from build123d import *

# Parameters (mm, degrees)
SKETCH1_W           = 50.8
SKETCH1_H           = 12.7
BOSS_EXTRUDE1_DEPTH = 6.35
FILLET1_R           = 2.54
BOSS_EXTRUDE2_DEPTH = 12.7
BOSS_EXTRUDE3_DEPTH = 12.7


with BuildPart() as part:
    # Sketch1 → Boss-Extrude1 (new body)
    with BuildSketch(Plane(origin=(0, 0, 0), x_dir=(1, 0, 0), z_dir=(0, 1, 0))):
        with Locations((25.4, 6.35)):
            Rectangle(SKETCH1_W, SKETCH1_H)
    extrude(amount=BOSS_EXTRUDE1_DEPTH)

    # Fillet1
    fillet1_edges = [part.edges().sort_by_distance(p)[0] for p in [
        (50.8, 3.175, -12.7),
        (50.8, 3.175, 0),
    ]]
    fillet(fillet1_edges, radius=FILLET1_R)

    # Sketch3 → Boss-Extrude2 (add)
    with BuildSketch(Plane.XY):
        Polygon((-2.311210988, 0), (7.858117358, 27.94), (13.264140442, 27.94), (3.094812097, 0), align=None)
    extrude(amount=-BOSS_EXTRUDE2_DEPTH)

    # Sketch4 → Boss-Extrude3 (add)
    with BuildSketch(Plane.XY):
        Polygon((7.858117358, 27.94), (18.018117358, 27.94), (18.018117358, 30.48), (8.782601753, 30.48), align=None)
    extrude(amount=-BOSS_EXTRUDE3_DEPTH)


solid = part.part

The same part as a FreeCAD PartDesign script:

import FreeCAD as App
import Part
import Sketcher
from FreeCAD import Vector
Q = App.Units.Quantity


def edges_at(feature, points):
    """Names of the edges that pass closest to the given points."""
    edges = feature.Shape.Edges
    near = lambda p: min(range(len(edges)), key=lambda i: edges[i].distToShape(Part.Vertex(*p))[0])
    return sorted({f"Edge{near(p) + 1}" for p in points})

doc = App.newDocument("Part")
body = doc.addObject("PartDesign::Body", "Body")

sketch1 = body.newObject("Sketcher::SketchObject", "Sketch")
sketch1.AttachmentSupport = (doc.getObject("XZ_Plane"), [""])
sketch1.MapMode = "FlatFace"
sketch1.addGeometry([
    Part.LineSegment(Vector(0, -12.7, 0), Vector(0, 0, 0)),
    Part.LineSegment(Vector(0, 0, 0), Vector(50.8, 0, 0)),
    Part.LineSegment(Vector(50.8, 0, 0), Vector(50.8, -12.7, 0)),
    Part.LineSegment(Vector(50.8, -12.7, 0), Vector(0, -12.7, 0)),
], False)
sketch1.addConstraint([
    Sketcher.Constraint("Coincident", 0, 2, 1, 1),
    Sketcher.Constraint("Coincident", 1, 2, 2, 1),
    Sketcher.Constraint("Coincident", 2, 2, 3, 1),
    Sketcher.Constraint("Coincident", 3, 2, 0, 1),
    Sketcher.Constraint("Vertical", 0),
    Sketcher.Constraint("Horizontal", 1),
    Sketcher.Constraint("Vertical", 2),
    Sketcher.Constraint("Horizontal", 3),
    Sketcher.Constraint("Coincident", 0, 2, -1, 1),
    Sketcher.Constraint("DistanceX", 1, 1, 1, 2, Q("2 in")),
    Sketcher.Constraint("DistanceY", 0, 1, 0, 2, Q("0.5 in")),
])
pad1 = body.newObject("PartDesign::Pad", "Pad")
pad1.Profile = sketch1
pad1.Length = Q("0.25 in")
pad1.Reversed = True
doc.recompute()

fillet = body.newObject("PartDesign::Fillet", "Fillet")
fillet.Base = (pad1, edges_at(pad1, [(50.8, 3.175, -12.7), (50.8, 3.175, 0)]))
fillet.Radius = Q("0.1 in")

sketch2 = body.newObject("Sketcher::SketchObject", "Sketch001")
sketch2.AttachmentSupport = (doc.getObject("XY_Plane"), [""])
sketch2.MapMode = "FlatFace"
sketch2.addGeometry([
    Part.LineSegment(Vector(7.858117, 27.94, 0), Vector(-2.311211, 0, 0)),
    Part.LineSegment(Vector(-2.311211, 0, 0), Vector(3.094812, 0, 0)),
    Part.LineSegment(Vector(3.094812, 0, 0), Vector(13.26414, 27.94, 0)),
    Part.LineSegment(Vector(13.26414, 27.94, 0), Vector(7.858117, 27.94, 0)),
], False)
sketch2.addConstraint([
    Sketcher.Constraint("Coincident", 0, 2, 1, 1),
    Sketcher.Constraint("Coincident", 1, 2, 2, 1),
    Sketcher.Constraint("Coincident", 2, 2, 3, 1),
    Sketcher.Constraint("Coincident", 3, 2, 0, 1),
    Sketcher.Constraint("Horizontal", 1),
    Sketcher.Constraint("Horizontal", 3),
    Sketcher.Constraint("PointOnObject", 0, 2, -1),
    Sketcher.Constraint("Parallel", 0, 2),
    Sketcher.Constraint("Angle", 0, Q("-110 deg")),
    Sketcher.Constraint("DistanceY", -1, 1, 2, 2, Q("1.1 in")),
    Sketcher.Constraint("DistanceX", 1, 1, 1, 2, Q("5.406023 mm")),
    Sketcher.Constraint("DistanceX", 0, 2, -1, 1, Q("2.311211 mm")),
])
pad2 = body.newObject("PartDesign::Pad", "Pad001")
pad2.Profile = sketch2
pad2.Length = Q("0.5 in")
pad2.Reversed = True

sketch3 = body.newObject("Sketcher::SketchObject", "Sketch002")
sketch3.AttachmentSupport = (doc.getObject("XY_Plane"), [""])
sketch3.MapMode = "FlatFace"
sketch3.addGeometry([
    Part.LineSegment(Vector(7.858117, 27.94, 0), Vector(18.018117, 27.94, 0)),
    Part.LineSegment(Vector(18.018117, 27.94, 0), Vector(18.018117, 30.48, 0)),
    Part.LineSegment(Vector(18.018117, 30.48, 0), Vector(8.782602, 30.48, 0)),
    Part.LineSegment(Vector(8.782602, 30.48, 0), Vector(7.858117, 27.94, 0)),
], False)
sketch3.addConstraint([
    Sketcher.Constraint("Coincident", 0, 2, 1, 1),
    Sketcher.Constraint("Coincident", 1, 2, 2, 1),
    Sketcher.Constraint("Coincident", 2, 2, 3, 1),
    Sketcher.Constraint("Coincident", 3, 2, 0, 1),
    Sketcher.Constraint("Horizontal", 0),
    Sketcher.Constraint("Vertical", 1),
    Sketcher.Constraint("Horizontal", 2),
    Sketcher.Constraint("DistanceX", 0, 1, 0, 2, Q("0.4 in")),
    Sketcher.Constraint("DistanceY", 1, 1, 1, 2, Q("0.1 in")),
    Sketcher.Constraint("Angle", 3, Q("-110 deg")),
    Sketcher.Constraint("DistanceY", -1, 1, 0, 2, Q("1.1 in")),
    Sketcher.Constraint("DistanceX", -1, 1, 2, 2, Q("8.782602 mm")),
])
pad3 = body.newObject("PartDesign::Pad", "Pad002")
pad3.Profile = sketch3
pad3.Length = Q("0.5 in")
pad3.Reversed = True

doc.recompute()
